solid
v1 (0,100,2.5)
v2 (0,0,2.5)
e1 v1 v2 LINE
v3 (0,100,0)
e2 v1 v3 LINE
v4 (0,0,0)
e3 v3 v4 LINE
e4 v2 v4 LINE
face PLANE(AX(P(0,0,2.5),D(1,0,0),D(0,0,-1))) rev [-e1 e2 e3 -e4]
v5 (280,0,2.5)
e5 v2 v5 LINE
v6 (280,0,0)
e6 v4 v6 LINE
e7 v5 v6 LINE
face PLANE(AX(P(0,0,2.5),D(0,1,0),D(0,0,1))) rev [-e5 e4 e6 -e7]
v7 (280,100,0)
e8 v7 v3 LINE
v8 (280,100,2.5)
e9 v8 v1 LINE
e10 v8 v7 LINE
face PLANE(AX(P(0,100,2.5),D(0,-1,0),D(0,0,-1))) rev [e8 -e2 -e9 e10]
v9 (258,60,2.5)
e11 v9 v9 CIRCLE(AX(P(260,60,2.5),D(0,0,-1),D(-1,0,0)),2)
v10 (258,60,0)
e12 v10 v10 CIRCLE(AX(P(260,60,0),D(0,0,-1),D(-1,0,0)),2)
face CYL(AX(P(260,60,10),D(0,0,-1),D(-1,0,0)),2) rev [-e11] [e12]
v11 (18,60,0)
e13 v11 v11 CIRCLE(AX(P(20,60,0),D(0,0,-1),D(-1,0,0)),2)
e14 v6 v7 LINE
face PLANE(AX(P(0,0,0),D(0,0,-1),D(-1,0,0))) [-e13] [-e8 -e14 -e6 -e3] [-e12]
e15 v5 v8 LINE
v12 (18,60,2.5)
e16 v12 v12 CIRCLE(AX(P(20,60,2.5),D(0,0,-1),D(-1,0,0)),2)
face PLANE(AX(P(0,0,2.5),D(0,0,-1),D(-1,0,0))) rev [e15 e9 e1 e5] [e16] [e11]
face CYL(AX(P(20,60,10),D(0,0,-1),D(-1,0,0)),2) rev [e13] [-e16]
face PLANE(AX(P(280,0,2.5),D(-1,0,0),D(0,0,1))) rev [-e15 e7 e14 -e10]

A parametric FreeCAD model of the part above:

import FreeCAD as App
import Part
import Sketcher

V = App.Vector


def add_polygon(sketch, points):
    """Adds a closed chain of lines whose ends are joined by coincident constraints."""
    first, n = sketch.GeometryCount, len(points)
    for a, b in zip(points, points[1:] + points[:1]):
        sketch.addGeometry(Part.LineSegment(App.Vector(*a, 0), App.Vector(*b, 0)), False)
    for i in range(n):
        sketch.addConstraint(Sketcher.Constraint("Coincident", first + i, 2, first + (i + 1) % n, 1))

doc = App.newDocument("Part")
body = doc.addObject("PartDesign::Body", "Body")

sketch1 = body.newObject("Sketcher::SketchObject", "Sketch")
sketch1.AttachmentSupport = (doc.getObject("XY_Plane"), [""])
sketch1.MapMode = "FlatFace"
add_polygon(sketch1, [(0, 100), (0, 0), (280, 0), (280, 100)])
sketch1.addConstraint(Sketcher.Constraint("Vertical", 0))
sketch1.addConstraint(Sketcher.Constraint("Horizontal", 1))
sketch1.addConstraint(Sketcher.Constraint("Vertical", 2))
sketch1.addConstraint(Sketcher.Constraint("Horizontal", 3))
sketch1.addConstraint(Sketcher.Constraint("Coincident", 0, 2, -1, 1))
sketch1.addConstraint(Sketcher.Constraint("DistanceX", 1, 1, 1, 2, 280.0))
sketch1.addConstraint(Sketcher.Constraint("DistanceY", 0, 2, 0, 1, 100.0))
pad1 = body.newObject("PartDesign::Pad", "Pad")
pad1.Profile = sketch1
pad1.Length = 2.5

sketch2 = body.newObject("Sketcher::SketchObject", "Sketch001")
sketch2.AttachmentSupport = (doc.getObject("XY_Plane"), [""])
sketch2.MapMode = "FlatFace"
sketch2.addGeometry(Part.Circle(V(20, 60, 0), V(0, 0, 1), 2), False)
sketch2.addGeometry(Part.Circle(V(260, 60, 0), V(0, 0, 1), 2), False)
sketch2.addConstraint(Sketcher.Constraint("Equal", 0, 1))
sketch2.addConstraint(Sketcher.Constraint("Horizontal", 0, 3, 1, 3))
sketch2.addConstraint(Sketcher.Constraint("Diameter", 0, 4.0))
sketch2.addConstraint(Sketcher.Constraint("DistanceX", -1, 1, 0, 3, 20.0))
sketch2.addConstraint(Sketcher.Constraint("DistanceY", -1, 1, 0, 3, 60.0))
sketch2.addConstraint(Sketcher.Constraint("DistanceX", -1, 1, 1, 3, 260.0))
pocket1 = body.newObject("PartDesign::Pocket", "Pocket")
pocket1.Profile = sketch2
pocket1.Length = 10
pocket1.Reversed = True

doc.recompute()
